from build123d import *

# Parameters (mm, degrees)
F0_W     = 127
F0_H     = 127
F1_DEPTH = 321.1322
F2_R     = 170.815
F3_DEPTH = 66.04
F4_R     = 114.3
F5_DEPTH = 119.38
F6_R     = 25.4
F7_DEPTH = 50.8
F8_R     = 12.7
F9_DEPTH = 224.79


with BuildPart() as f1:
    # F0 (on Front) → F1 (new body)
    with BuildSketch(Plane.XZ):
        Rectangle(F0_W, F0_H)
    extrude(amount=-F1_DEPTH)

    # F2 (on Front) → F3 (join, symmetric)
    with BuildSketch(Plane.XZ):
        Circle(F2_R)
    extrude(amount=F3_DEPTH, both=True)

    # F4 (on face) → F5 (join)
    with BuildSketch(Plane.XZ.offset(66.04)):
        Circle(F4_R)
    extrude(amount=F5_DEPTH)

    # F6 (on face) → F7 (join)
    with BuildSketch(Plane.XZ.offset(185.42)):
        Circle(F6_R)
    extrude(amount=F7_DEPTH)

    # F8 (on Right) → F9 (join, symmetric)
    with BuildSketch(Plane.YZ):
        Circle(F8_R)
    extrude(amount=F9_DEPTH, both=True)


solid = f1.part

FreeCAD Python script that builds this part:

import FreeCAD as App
import Part
import Sketcher

V = App.Vector
Q = App.Units.Quantity


def add_polygon(sketch, points):
    """Adds a closed chain of lines whose ends are joined by coincident constraints."""
    first, n = sketch.GeometryCount, len(points)
    for a, b in zip(points, points[1:] + points[:1]):
        sketch.addGeometry(Part.LineSegment(App.Vector(*a, 0), App.Vector(*b, 0)), False)
    for i in range(n):
        sketch.addConstraint(Sketcher.Constraint("Coincident", first + i, 2, first + (i + 1) % n, 1))

doc = App.newDocument("Part")
body = doc.addObject("PartDesign::Body", "Body")

sketch1 = body.newObject("Sketcher::SketchObject", "Sketch")
sketch1.AttachmentSupport = (doc.getObject("XZ_Plane"), [""])
sketch1.MapMode = "FlatFace"
add_polygon(sketch1, [(-64, 64), (-64, -64), (64, -64), (64, 64)])
sketch1.addConstraint([
    Sketcher.Constraint("Vertical", 0),
    Sketcher.Constraint("Horizontal", 1),
    Sketcher.Constraint("Vertical", 2),
    Sketcher.Constraint("Horizontal", 3),
    Sketcher.Constraint("Symmetric", 0, 2, 2, 2, -1, 1),
    Sketcher.Constraint("Equal", 3, 0),
    Sketcher.Constraint("DistanceX", 1, 1, 1, 2, Q("5 in")),
])
pad1 = body.newObject("PartDesign::Pad", "Pad")
pad1.Profile = sketch1
pad1.Length = Q("12.643 in")
pad1.Reversed = True

sketch2 = body.newObject("Sketcher::SketchObject", "Sketch001")
sketch2.AttachmentSupport = (doc.getObject("XZ_Plane"), [""])
sketch2.MapMode = "FlatFace"
sketch2.addGeometry(Part.Circle(V(0, 0, 0), V(0, 0, 1), 171), False)
sketch2.addConstraint([
    Sketcher.Constraint("Coincident", 0, 3, -1, 1),
    Sketcher.Constraint("Diameter", 0, Q("13.45 in")),
])
pad2 = body.newObject("PartDesign::Pad", "Pad001")
pad2.Profile = sketch2
pad2.Length = Q("5.2 in")
pad2.Midplane = True

sketch3 = body.newObject("Sketcher::SketchObject", "Sketch002")
sketch3.AttachmentSupport = (doc.getObject("XZ_Plane"), [""])
sketch3.MapMode = "FlatFace"
sketch3.AttachmentOffset = App.Placement(V(0, 0, 2.6 * 25.4), App.Rotation())
sketch3.addGeometry(Part.Circle(V(0, 0, 0), V(0, 0, 1), 114), False)
sketch3.addConstraint([
    Sketcher.Constraint("Coincident", 0, 3, -1, 1),
    Sketcher.Constraint("Diameter", 0, Q("9 in")),
])
pad3 = body.newObject("PartDesign::Pad", "Pad002")
pad3.Profile = sketch3
pad3.Length = Q("4.7 in")

sketch4 = body.newObject("Sketcher::SketchObject", "Sketch003")
sketch4.AttachmentSupport = (doc.getObject("XZ_Plane"), [""])
sketch4.MapMode = "FlatFace"
sketch4.AttachmentOffset = App.Placement(V(0, 0, 7.3 * 25.4), App.Rotation())
sketch4.addGeometry(Part.Circle(V(0, 0, 0), V(0, 0, 1), 25), False)
sketch4.addConstraint([
    Sketcher.Constraint("Coincident", 0, 3, -1, 1),
    Sketcher.Constraint("Diameter", 0, Q("2 in")),
])
pad4 = body.newObject("PartDesign::Pad", "Pad003")
pad4.Profile = sketch4
pad4.Length = Q("2 in")

sketch5 = body.newObject("Sketcher::SketchObject", "Sketch004")
sketch5.AttachmentSupport = (doc.getObject("YZ_Plane"), [""])
sketch5.MapMode = "FlatFace"
sketch5.addGeometry(Part.Circle(V(0, 0, 0), V(0, 0, 1), 13), False)
sketch5.addConstraint([
    Sketcher.Constraint("Coincident", 0, 3, -1, 1),
    Sketcher.Constraint("Diameter", 0, Q("1 in")),
])
pad5 = body.newObject("PartDesign::Pad", "Pad004")
pad5.Profile = sketch5
pad5.Length = Q("17.7 in")
pad5.Midplane = True

doc.recompute()
